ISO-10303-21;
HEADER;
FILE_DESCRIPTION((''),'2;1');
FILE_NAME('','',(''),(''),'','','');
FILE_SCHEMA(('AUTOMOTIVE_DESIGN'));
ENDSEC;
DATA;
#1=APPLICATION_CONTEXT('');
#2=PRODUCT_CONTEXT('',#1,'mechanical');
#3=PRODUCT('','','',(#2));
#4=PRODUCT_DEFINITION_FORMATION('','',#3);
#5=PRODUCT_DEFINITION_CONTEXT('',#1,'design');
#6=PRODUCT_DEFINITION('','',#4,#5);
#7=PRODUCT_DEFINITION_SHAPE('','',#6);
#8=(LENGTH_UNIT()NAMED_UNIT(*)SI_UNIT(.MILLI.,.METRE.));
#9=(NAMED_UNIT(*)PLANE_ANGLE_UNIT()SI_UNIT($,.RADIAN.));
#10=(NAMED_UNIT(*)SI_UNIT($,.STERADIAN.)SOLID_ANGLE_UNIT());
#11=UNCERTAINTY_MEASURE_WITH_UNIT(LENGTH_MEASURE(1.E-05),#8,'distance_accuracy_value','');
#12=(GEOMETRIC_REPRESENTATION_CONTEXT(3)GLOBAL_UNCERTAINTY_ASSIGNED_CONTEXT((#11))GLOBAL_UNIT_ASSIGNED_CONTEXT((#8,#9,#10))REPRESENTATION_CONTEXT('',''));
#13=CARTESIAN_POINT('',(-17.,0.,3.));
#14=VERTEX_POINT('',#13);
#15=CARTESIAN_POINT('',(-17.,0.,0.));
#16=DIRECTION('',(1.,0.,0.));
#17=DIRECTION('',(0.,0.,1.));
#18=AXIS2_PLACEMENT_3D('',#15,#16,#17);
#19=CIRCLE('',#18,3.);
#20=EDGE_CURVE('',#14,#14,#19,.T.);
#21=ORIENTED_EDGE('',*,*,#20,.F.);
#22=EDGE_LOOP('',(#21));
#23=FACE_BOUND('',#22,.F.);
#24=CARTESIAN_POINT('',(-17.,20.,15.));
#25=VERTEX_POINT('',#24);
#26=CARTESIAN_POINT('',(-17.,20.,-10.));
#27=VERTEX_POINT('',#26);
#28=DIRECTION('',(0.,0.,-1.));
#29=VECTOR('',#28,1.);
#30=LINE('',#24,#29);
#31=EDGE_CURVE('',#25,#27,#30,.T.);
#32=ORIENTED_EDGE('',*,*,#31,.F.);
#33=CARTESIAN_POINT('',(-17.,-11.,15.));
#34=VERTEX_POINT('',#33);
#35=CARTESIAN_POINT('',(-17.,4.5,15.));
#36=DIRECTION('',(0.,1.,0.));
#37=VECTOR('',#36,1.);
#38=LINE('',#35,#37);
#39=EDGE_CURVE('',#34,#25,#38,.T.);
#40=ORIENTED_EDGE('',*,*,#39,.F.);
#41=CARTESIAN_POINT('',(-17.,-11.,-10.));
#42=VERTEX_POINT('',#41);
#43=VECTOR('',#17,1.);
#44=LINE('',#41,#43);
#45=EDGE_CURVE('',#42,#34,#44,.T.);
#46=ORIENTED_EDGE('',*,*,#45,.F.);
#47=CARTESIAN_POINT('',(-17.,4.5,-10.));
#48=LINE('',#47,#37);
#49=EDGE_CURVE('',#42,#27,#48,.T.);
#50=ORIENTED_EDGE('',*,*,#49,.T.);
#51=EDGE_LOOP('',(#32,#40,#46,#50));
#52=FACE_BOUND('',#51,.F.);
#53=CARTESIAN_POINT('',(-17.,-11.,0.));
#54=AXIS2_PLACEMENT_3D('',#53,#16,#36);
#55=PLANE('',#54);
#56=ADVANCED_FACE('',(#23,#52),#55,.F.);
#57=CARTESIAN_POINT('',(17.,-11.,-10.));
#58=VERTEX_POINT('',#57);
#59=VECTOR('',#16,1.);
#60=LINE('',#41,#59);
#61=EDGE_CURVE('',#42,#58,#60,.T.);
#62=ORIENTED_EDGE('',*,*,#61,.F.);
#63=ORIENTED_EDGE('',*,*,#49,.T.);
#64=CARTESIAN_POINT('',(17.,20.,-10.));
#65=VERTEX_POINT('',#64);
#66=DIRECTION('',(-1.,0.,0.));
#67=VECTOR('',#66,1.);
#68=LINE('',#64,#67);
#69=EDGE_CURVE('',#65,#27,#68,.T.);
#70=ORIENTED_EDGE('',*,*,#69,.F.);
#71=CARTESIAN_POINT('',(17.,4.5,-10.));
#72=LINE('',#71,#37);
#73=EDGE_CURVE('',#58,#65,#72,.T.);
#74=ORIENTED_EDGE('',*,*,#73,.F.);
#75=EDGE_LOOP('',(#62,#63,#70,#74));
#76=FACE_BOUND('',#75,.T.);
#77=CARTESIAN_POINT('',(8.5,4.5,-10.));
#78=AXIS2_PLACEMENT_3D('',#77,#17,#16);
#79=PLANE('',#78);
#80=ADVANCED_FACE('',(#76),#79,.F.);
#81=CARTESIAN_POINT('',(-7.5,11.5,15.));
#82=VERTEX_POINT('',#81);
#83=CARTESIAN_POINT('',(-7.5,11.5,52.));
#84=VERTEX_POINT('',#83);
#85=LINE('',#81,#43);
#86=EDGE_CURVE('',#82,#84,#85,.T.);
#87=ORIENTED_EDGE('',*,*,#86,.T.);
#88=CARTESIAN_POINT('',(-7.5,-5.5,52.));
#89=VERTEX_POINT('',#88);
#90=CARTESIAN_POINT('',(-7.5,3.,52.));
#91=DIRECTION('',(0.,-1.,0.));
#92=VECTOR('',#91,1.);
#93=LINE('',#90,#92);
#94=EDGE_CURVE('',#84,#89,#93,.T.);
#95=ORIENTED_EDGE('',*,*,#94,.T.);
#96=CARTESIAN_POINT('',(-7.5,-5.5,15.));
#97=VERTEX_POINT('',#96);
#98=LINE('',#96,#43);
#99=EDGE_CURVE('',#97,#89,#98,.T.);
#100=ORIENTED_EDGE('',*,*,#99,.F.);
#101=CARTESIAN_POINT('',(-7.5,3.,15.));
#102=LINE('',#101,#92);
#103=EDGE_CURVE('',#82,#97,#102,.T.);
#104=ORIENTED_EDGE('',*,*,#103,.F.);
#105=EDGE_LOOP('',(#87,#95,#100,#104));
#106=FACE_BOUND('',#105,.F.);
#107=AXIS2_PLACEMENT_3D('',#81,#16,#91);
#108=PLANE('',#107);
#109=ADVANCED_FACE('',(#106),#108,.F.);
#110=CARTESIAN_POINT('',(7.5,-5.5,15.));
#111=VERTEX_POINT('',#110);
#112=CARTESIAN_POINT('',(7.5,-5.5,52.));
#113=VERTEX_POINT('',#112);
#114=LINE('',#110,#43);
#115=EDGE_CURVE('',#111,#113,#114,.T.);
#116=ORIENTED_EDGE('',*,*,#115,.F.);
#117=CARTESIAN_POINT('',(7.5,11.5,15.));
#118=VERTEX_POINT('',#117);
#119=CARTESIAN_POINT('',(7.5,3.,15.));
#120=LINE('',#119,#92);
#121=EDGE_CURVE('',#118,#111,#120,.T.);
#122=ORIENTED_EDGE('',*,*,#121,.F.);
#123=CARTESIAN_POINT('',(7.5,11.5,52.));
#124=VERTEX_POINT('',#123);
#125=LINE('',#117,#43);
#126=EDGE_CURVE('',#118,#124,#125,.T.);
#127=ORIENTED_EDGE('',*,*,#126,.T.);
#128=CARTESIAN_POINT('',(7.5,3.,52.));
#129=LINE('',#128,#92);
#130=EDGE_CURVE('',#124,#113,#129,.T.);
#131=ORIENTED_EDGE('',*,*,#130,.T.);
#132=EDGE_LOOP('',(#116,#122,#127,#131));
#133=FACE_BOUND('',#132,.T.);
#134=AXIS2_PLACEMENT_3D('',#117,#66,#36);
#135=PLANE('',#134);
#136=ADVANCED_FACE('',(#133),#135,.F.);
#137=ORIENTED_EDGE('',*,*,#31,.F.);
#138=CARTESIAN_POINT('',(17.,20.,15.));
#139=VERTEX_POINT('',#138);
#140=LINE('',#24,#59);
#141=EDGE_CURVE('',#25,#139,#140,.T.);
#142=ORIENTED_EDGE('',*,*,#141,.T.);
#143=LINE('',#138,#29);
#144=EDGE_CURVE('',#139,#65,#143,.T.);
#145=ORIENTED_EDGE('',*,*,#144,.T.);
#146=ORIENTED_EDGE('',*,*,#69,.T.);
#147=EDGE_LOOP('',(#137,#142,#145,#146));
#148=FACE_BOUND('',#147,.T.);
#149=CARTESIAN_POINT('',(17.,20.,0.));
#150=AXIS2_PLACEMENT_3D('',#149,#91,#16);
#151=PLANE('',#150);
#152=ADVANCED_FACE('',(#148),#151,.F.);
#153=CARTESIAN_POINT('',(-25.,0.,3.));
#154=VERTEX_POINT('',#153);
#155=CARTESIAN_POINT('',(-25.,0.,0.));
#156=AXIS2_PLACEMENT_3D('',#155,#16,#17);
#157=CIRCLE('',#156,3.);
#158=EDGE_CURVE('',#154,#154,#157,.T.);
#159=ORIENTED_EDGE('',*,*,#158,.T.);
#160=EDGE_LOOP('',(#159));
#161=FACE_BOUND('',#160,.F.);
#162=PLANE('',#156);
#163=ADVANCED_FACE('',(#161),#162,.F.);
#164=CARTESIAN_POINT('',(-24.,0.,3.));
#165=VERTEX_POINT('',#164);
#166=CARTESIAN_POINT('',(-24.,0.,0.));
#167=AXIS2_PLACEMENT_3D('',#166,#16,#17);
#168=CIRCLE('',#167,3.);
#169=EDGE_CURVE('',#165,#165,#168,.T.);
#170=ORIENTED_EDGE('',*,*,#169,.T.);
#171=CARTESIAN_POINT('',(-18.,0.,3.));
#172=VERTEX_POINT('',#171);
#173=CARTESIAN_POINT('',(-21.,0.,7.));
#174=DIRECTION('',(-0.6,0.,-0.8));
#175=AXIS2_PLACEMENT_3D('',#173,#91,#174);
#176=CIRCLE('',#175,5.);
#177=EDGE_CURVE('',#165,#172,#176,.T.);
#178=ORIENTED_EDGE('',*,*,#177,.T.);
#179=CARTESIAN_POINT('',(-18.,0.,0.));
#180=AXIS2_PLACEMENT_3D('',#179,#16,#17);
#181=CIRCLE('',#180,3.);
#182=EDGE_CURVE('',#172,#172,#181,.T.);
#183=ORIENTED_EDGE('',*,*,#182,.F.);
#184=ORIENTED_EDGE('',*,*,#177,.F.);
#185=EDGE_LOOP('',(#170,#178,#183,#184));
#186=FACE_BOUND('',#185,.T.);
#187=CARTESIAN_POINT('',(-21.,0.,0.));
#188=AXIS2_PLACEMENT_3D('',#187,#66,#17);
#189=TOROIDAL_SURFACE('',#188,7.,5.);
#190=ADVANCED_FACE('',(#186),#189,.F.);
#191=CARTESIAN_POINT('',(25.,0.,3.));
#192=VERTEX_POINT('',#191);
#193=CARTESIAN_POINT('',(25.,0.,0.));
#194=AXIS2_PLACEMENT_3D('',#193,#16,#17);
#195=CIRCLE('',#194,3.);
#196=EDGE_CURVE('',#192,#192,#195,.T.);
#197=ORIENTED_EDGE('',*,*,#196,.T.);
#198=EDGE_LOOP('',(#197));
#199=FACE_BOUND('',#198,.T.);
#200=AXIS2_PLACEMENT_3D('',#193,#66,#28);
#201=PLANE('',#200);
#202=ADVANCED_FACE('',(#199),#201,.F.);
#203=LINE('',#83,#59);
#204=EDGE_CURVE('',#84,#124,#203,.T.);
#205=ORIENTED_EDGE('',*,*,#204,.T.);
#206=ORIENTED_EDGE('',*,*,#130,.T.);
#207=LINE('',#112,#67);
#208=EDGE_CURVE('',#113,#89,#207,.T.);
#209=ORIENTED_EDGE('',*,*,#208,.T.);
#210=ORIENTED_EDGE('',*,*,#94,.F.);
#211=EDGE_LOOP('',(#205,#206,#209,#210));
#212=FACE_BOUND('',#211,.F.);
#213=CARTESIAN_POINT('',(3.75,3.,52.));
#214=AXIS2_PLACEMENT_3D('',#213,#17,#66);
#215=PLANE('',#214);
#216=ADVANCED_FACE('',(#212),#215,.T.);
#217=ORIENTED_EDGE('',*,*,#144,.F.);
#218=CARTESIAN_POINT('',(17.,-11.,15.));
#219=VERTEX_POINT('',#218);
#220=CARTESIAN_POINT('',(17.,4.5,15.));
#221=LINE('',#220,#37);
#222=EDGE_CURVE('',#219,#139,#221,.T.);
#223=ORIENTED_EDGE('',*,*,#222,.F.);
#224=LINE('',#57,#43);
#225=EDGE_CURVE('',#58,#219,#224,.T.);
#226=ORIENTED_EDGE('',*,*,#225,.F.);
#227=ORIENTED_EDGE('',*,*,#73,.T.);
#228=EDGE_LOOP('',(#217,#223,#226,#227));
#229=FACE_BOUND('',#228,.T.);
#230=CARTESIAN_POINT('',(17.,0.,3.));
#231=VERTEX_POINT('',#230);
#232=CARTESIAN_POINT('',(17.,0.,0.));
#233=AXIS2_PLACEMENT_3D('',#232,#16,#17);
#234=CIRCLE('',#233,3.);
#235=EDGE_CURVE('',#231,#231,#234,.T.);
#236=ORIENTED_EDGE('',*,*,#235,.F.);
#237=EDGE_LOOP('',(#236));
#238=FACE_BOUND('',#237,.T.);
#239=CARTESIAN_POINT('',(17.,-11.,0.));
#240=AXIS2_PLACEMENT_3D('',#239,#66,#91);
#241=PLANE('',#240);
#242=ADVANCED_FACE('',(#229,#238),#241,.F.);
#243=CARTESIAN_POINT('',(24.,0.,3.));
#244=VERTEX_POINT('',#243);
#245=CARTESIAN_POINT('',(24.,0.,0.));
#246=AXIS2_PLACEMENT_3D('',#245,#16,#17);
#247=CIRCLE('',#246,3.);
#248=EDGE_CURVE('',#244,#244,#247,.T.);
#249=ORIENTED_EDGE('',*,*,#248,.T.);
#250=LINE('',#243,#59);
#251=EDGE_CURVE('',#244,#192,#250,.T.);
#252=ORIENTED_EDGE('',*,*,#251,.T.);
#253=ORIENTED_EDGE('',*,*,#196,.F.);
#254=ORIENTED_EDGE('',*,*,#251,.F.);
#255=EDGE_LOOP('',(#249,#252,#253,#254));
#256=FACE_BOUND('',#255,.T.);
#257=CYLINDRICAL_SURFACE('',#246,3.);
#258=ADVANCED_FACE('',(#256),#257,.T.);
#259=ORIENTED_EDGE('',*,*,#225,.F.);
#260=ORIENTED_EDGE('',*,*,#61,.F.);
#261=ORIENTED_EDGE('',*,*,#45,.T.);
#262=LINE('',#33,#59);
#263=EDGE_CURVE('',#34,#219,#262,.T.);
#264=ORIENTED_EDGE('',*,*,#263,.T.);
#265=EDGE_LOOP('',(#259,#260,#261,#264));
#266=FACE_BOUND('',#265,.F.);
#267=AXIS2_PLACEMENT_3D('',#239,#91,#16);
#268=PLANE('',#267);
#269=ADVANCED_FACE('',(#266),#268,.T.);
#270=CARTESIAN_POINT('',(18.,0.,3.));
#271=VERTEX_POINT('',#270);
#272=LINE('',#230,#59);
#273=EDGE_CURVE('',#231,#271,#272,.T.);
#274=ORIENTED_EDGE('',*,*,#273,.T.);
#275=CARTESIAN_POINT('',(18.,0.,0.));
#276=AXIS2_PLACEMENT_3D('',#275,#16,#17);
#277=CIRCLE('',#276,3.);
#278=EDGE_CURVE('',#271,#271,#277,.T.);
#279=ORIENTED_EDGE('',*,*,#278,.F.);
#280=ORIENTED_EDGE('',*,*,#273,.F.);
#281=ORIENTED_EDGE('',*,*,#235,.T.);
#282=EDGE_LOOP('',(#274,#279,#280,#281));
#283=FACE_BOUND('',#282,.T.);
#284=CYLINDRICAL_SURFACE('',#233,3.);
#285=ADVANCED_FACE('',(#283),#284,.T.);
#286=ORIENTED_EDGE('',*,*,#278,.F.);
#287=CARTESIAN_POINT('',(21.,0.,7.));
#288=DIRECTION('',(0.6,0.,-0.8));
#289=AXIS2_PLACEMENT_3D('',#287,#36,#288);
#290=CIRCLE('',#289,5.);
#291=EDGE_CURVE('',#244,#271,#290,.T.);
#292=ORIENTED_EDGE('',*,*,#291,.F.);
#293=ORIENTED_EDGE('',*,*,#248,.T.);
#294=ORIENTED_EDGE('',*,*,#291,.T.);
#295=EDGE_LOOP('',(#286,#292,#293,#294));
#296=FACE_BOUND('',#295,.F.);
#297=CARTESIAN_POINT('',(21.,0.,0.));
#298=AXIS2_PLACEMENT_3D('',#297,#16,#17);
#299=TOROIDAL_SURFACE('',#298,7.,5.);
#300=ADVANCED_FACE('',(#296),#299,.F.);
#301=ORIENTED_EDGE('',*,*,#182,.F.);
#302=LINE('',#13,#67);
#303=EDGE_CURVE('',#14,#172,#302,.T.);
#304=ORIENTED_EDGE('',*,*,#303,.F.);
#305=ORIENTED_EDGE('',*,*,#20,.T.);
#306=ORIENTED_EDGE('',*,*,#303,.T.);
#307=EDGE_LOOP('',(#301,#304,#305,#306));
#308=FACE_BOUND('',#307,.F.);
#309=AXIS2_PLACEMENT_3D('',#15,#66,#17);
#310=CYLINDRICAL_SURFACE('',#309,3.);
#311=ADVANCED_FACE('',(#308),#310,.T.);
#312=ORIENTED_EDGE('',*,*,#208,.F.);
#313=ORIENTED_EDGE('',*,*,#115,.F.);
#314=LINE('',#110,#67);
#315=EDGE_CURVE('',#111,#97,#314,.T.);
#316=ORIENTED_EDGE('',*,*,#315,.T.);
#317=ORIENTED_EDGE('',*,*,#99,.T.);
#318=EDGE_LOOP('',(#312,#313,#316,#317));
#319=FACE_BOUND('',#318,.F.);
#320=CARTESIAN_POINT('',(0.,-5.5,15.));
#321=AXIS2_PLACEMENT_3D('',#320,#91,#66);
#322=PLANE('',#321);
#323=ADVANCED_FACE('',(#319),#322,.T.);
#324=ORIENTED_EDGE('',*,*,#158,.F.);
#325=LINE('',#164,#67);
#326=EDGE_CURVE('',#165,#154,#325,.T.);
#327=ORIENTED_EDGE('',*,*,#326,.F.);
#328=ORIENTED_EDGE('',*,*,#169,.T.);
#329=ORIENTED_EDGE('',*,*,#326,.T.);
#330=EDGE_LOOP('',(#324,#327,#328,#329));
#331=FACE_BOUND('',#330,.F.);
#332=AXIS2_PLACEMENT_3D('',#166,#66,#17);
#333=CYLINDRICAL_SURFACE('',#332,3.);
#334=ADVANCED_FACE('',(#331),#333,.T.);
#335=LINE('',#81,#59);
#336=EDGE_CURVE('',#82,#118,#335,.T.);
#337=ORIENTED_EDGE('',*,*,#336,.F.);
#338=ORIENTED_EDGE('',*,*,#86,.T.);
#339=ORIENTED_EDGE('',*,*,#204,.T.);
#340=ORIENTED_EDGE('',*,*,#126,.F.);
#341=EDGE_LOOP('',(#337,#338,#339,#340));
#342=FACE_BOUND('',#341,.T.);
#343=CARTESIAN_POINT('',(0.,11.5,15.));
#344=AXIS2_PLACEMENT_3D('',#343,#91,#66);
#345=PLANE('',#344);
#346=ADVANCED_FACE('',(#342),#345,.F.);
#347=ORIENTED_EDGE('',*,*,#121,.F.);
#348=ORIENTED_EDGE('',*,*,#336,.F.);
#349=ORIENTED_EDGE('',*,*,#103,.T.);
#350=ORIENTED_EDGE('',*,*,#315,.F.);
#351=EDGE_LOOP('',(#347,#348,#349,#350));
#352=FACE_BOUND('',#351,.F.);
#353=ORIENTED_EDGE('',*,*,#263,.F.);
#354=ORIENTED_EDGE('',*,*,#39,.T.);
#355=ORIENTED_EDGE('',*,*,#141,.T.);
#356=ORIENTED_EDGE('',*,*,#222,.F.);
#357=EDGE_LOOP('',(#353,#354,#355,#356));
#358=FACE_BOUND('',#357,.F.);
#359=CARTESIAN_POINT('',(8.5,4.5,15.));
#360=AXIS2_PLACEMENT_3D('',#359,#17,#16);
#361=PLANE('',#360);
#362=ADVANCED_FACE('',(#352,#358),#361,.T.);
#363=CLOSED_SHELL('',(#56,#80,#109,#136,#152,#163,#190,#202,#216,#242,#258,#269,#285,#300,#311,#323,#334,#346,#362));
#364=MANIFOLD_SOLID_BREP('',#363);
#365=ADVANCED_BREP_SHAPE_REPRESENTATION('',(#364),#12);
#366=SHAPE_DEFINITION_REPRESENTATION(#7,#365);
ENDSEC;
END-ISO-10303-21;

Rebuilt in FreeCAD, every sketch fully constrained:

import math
import FreeCAD as App
import Part
import Sketcher
from FreeCAD import Vector
Q = App.Units.Quantity

doc = App.newDocument("Part")
params = doc.addObject("Spreadsheet::Sheet", "Params")
for row, (alias, value) in enumerate([
    ("sketch1_radius", "5 mm"),
    ("sketch1_width", "1 mm"),
    ("sketch1_width2", "8 mm"),
    ("sketch1_height", "3 mm"),
    ("revolution_angle", "360 deg"),
    ("sketch2_width", "17 mm"),
    ("sketch2_height", "31 mm"),
    ("pad1_length", "15 mm"),
    ("pad1_length2", "10 mm"),
    ("sketch3_height", "17 mm"),
    ("sketch3_width", "7.5 mm"),
    ("pad2_length", "37 mm"),
], start=1):
    params.set(f"A{row}", alias)
    params.set(f"B{row}", "=" + value)
    params.setAlias(f"B{row}", alias)

body = doc.addObject("PartDesign::Body", "Body")

sketch1 = doc.addObject("Sketcher::SketchObject", "Sketch")
body.addObject(sketch1)
sketch1.AttachmentSupport = (doc.XZ_Plane, [""])
sketch1.MapMode = "FlatFace"
sketch1.addGeometry([
    Part.LineSegment(Vector(-24, 3, 0), Vector(-25, 3, 0)),
    Part.LineSegment(Vector(-25, 3, 0), Vector(-25, 0, 0)),
    Part.LineSegment(Vector(-25, 0, 0), Vector(-17, 0, 0)),
    Part.LineSegment(Vector(-17, 0, 0), Vector(-17, 3, 0)),
    Part.LineSegment(Vector(-17, 3, 0), Vector(-18, 3, 0)),
    Part.ArcOfCircle(Part.Circle(Vector(-21, 7, 0), Vector(0, 0, 1), 5), math.radians(-127), math.radians(-53)),
], False)
sketch1.addConstraint([
    Sketcher.Constraint("Coincident", 0, 2, 1, 1),
    Sketcher.Constraint("Coincident", 1, 2, 2, 1),
    Sketcher.Constraint("Coincident", 2, 2, 3, 1),
    Sketcher.Constraint("Coincident", 3, 2, 4, 1),
    Sketcher.Constraint("Coincident", 4, 2, 5, 2),
    Sketcher.Constraint("Coincident", 5, 1, 0, 1),
    Sketcher.Constraint("Horizontal", 0),
    Sketcher.Constraint("Vertical", 1),
    Sketcher.Constraint("Horizontal", 2),
    Sketcher.Constraint("Vertical", 3),
    Sketcher.Constraint("Horizontal", 4),
    Sketcher.Constraint("PointOnObject", 1, 2, -1),
    Sketcher.Constraint("Horizontal", 0, 2, 3, 2),
    Sketcher.Constraint("Equal", 0, 4),
    Sketcher.Constraint("Radius", 5, Q("5 mm")),
    Sketcher.Constraint("DistanceX", 0, 2, 0, 1, Q("1 mm")),
    Sketcher.Constraint("DistanceX", 2, 1, 2, 2, Q("8 mm")),
    Sketcher.Constraint("DistanceY", 1, 2, 1, 1, Q("3 mm")),
    Sketcher.Constraint("DistanceX", 5, 3, -1, 1, Q("21 mm")),
])
sketch1.setExpression("Constraints[14]", "Params.sketch1_radius")
sketch1.setExpression("Constraints[15]", "Params.sketch1_width")
sketch1.setExpression("Constraints[16]", "Params.sketch1_width2")
sketch1.setExpression("Constraints[17]", "Params.sketch1_height")
revolution = doc.addObject("PartDesign::Revolution", "Revolution")
body.addObject(revolution)
revolution.Profile = sketch1
revolution.ReferenceAxis = (sketch1, ["H_Axis"])
revolution.setExpression("Angle", "Params.revolution_angle")

sketch2 = doc.addObject("Sketcher::SketchObject", "Sketch001")
body.addObject(sketch2)
sketch2.AttachmentSupport = (doc.XY_Plane, [""])
sketch2.MapMode = "FlatFace"
sketch2.addGeometry([
    Part.LineSegment(Vector(-17, 20, 0), Vector(-17, -11, 0)),
    Part.LineSegment(Vector(-17, -11, 0), Vector(0, -11, 0)),
    Part.LineSegment(Vector(0, -11, 0), Vector(0, 20, 0)),
    Part.LineSegment(Vector(0, 20, 0), Vector(-17, 20, 0)),
], False)
sketch2.addConstraint([
    Sketcher.Constraint("Coincident", 0, 2, 1, 1),
    Sketcher.Constraint("Coincident", 1, 2, 2, 1),
    Sketcher.Constraint("Coincident", 2, 2, 3, 1),
    Sketcher.Constraint("Coincident", 3, 2, 0, 1),
    Sketcher.Constraint("Vertical", 0),
    Sketcher.Constraint("Horizontal", 1),
    Sketcher.Constraint("Vertical", 2),
    Sketcher.Constraint("Horizontal", 3),
    Sketcher.Constraint("PointOnObject", 1, 2, -2),
    Sketcher.Constraint("DistanceX", 1, 1, 1, 2, Q("17 mm")),
    Sketcher.Constraint("DistanceY", 0, 2, 0, 1, Q("31 mm")),
    Sketcher.Constraint("DistanceY", 0, 2, -1, 1, Q("11 mm")),
])
sketch2.setExpression("Constraints[9]", "Params.sketch2_width")
sketch2.setExpression("Constraints[10]", "Params.sketch2_height")
pad1 = doc.addObject("PartDesign::Pad", "Pad")
body.addObject(pad1)
pad1.Profile = sketch2
pad1.Type = "TwoLengths"
pad1.setExpression("Length", "Params.pad1_length")
pad1.setExpression("Length2", "Params.pad1_length2")

sketch3 = doc.addObject("Sketcher::SketchObject", "Sketch002")
body.addObject(sketch3)
sketch3.AttachmentSupport = (doc.XY_Plane, [""])
sketch3.MapMode = "FlatFace"
sketch3.AttachmentOffset = App.Placement(Vector(0, 0, 15), App.Rotation())
sketch3.addGeometry([
    Part.LineSegment(Vector(0, -6, 0), Vector(0, 12, 0)),
    Part.LineSegment(Vector(0, 12, 0), Vector(-8, 12, 0)),
    Part.LineSegment(Vector(-8, 12, 0), Vector(-8, -6, 0)),
    Part.LineSegment(Vector(-8, -6, 0), Vector(0, -6, 0)),
], False)
sketch3.addConstraint([
    Sketcher.Constraint("Coincident", 0, 2, 1, 1),
    Sketcher.Constraint("Coincident", 1, 2, 2, 1),
    Sketcher.Constraint("Coincident", 2, 2, 3, 1),
    Sketcher.Constraint("Coincident", 3, 2, 0, 1),
    Sketcher.Constraint("Vertical", 0),
    Sketcher.Constraint("Horizontal", 1),
    Sketcher.Constraint("Vertical", 2),
    Sketcher.Constraint("Horizontal", 3),
    Sketcher.Constraint("PointOnObject", 0, 2, -2),
    Sketcher.Constraint("DistanceY", 0, 1, 0, 2, Q("17 mm")),
    Sketcher.Constraint("DistanceX", 1, 2, 1, 1, Q("7.5 mm")),
    Sketcher.Constraint("DistanceY", -1, 1, 0, 2, Q("11.5 mm")),
])
sketch3.setExpression("Constraints[9]", "Params.sketch3_height")
sketch3.setExpression("Constraints[10]", "Params.sketch3_width")
pad2 = doc.addObject("PartDesign::Pad", "Pad001")
body.addObject(pad2)
pad2.Profile = sketch3
pad2.setExpression("Length", "Params.pad2_length")
body2 = doc.addObject("PartDesign::Body", "Body001")
doc.recompute()

body2.BaseFeature = body
doc.recompute()

mirroring = doc.addObject("Part::Mirroring", "Mirroring")
mirroring.Source = body
mirroring.Base = Vector(0, 0, 0)
mirroring.Normal = Vector(1, 0, 0)
body3 = doc.addObject("PartDesign::Body", "Body002")
body3.BaseFeature = mirroring
boolean = doc.addObject("PartDesign::Boolean", "Boolean")
body2.addObject(boolean)
boolean.Type = "Fuse"
boolean.addObjects([body3])
doc.recompute()
mirroring.Visibility = False

doc.recompute()
